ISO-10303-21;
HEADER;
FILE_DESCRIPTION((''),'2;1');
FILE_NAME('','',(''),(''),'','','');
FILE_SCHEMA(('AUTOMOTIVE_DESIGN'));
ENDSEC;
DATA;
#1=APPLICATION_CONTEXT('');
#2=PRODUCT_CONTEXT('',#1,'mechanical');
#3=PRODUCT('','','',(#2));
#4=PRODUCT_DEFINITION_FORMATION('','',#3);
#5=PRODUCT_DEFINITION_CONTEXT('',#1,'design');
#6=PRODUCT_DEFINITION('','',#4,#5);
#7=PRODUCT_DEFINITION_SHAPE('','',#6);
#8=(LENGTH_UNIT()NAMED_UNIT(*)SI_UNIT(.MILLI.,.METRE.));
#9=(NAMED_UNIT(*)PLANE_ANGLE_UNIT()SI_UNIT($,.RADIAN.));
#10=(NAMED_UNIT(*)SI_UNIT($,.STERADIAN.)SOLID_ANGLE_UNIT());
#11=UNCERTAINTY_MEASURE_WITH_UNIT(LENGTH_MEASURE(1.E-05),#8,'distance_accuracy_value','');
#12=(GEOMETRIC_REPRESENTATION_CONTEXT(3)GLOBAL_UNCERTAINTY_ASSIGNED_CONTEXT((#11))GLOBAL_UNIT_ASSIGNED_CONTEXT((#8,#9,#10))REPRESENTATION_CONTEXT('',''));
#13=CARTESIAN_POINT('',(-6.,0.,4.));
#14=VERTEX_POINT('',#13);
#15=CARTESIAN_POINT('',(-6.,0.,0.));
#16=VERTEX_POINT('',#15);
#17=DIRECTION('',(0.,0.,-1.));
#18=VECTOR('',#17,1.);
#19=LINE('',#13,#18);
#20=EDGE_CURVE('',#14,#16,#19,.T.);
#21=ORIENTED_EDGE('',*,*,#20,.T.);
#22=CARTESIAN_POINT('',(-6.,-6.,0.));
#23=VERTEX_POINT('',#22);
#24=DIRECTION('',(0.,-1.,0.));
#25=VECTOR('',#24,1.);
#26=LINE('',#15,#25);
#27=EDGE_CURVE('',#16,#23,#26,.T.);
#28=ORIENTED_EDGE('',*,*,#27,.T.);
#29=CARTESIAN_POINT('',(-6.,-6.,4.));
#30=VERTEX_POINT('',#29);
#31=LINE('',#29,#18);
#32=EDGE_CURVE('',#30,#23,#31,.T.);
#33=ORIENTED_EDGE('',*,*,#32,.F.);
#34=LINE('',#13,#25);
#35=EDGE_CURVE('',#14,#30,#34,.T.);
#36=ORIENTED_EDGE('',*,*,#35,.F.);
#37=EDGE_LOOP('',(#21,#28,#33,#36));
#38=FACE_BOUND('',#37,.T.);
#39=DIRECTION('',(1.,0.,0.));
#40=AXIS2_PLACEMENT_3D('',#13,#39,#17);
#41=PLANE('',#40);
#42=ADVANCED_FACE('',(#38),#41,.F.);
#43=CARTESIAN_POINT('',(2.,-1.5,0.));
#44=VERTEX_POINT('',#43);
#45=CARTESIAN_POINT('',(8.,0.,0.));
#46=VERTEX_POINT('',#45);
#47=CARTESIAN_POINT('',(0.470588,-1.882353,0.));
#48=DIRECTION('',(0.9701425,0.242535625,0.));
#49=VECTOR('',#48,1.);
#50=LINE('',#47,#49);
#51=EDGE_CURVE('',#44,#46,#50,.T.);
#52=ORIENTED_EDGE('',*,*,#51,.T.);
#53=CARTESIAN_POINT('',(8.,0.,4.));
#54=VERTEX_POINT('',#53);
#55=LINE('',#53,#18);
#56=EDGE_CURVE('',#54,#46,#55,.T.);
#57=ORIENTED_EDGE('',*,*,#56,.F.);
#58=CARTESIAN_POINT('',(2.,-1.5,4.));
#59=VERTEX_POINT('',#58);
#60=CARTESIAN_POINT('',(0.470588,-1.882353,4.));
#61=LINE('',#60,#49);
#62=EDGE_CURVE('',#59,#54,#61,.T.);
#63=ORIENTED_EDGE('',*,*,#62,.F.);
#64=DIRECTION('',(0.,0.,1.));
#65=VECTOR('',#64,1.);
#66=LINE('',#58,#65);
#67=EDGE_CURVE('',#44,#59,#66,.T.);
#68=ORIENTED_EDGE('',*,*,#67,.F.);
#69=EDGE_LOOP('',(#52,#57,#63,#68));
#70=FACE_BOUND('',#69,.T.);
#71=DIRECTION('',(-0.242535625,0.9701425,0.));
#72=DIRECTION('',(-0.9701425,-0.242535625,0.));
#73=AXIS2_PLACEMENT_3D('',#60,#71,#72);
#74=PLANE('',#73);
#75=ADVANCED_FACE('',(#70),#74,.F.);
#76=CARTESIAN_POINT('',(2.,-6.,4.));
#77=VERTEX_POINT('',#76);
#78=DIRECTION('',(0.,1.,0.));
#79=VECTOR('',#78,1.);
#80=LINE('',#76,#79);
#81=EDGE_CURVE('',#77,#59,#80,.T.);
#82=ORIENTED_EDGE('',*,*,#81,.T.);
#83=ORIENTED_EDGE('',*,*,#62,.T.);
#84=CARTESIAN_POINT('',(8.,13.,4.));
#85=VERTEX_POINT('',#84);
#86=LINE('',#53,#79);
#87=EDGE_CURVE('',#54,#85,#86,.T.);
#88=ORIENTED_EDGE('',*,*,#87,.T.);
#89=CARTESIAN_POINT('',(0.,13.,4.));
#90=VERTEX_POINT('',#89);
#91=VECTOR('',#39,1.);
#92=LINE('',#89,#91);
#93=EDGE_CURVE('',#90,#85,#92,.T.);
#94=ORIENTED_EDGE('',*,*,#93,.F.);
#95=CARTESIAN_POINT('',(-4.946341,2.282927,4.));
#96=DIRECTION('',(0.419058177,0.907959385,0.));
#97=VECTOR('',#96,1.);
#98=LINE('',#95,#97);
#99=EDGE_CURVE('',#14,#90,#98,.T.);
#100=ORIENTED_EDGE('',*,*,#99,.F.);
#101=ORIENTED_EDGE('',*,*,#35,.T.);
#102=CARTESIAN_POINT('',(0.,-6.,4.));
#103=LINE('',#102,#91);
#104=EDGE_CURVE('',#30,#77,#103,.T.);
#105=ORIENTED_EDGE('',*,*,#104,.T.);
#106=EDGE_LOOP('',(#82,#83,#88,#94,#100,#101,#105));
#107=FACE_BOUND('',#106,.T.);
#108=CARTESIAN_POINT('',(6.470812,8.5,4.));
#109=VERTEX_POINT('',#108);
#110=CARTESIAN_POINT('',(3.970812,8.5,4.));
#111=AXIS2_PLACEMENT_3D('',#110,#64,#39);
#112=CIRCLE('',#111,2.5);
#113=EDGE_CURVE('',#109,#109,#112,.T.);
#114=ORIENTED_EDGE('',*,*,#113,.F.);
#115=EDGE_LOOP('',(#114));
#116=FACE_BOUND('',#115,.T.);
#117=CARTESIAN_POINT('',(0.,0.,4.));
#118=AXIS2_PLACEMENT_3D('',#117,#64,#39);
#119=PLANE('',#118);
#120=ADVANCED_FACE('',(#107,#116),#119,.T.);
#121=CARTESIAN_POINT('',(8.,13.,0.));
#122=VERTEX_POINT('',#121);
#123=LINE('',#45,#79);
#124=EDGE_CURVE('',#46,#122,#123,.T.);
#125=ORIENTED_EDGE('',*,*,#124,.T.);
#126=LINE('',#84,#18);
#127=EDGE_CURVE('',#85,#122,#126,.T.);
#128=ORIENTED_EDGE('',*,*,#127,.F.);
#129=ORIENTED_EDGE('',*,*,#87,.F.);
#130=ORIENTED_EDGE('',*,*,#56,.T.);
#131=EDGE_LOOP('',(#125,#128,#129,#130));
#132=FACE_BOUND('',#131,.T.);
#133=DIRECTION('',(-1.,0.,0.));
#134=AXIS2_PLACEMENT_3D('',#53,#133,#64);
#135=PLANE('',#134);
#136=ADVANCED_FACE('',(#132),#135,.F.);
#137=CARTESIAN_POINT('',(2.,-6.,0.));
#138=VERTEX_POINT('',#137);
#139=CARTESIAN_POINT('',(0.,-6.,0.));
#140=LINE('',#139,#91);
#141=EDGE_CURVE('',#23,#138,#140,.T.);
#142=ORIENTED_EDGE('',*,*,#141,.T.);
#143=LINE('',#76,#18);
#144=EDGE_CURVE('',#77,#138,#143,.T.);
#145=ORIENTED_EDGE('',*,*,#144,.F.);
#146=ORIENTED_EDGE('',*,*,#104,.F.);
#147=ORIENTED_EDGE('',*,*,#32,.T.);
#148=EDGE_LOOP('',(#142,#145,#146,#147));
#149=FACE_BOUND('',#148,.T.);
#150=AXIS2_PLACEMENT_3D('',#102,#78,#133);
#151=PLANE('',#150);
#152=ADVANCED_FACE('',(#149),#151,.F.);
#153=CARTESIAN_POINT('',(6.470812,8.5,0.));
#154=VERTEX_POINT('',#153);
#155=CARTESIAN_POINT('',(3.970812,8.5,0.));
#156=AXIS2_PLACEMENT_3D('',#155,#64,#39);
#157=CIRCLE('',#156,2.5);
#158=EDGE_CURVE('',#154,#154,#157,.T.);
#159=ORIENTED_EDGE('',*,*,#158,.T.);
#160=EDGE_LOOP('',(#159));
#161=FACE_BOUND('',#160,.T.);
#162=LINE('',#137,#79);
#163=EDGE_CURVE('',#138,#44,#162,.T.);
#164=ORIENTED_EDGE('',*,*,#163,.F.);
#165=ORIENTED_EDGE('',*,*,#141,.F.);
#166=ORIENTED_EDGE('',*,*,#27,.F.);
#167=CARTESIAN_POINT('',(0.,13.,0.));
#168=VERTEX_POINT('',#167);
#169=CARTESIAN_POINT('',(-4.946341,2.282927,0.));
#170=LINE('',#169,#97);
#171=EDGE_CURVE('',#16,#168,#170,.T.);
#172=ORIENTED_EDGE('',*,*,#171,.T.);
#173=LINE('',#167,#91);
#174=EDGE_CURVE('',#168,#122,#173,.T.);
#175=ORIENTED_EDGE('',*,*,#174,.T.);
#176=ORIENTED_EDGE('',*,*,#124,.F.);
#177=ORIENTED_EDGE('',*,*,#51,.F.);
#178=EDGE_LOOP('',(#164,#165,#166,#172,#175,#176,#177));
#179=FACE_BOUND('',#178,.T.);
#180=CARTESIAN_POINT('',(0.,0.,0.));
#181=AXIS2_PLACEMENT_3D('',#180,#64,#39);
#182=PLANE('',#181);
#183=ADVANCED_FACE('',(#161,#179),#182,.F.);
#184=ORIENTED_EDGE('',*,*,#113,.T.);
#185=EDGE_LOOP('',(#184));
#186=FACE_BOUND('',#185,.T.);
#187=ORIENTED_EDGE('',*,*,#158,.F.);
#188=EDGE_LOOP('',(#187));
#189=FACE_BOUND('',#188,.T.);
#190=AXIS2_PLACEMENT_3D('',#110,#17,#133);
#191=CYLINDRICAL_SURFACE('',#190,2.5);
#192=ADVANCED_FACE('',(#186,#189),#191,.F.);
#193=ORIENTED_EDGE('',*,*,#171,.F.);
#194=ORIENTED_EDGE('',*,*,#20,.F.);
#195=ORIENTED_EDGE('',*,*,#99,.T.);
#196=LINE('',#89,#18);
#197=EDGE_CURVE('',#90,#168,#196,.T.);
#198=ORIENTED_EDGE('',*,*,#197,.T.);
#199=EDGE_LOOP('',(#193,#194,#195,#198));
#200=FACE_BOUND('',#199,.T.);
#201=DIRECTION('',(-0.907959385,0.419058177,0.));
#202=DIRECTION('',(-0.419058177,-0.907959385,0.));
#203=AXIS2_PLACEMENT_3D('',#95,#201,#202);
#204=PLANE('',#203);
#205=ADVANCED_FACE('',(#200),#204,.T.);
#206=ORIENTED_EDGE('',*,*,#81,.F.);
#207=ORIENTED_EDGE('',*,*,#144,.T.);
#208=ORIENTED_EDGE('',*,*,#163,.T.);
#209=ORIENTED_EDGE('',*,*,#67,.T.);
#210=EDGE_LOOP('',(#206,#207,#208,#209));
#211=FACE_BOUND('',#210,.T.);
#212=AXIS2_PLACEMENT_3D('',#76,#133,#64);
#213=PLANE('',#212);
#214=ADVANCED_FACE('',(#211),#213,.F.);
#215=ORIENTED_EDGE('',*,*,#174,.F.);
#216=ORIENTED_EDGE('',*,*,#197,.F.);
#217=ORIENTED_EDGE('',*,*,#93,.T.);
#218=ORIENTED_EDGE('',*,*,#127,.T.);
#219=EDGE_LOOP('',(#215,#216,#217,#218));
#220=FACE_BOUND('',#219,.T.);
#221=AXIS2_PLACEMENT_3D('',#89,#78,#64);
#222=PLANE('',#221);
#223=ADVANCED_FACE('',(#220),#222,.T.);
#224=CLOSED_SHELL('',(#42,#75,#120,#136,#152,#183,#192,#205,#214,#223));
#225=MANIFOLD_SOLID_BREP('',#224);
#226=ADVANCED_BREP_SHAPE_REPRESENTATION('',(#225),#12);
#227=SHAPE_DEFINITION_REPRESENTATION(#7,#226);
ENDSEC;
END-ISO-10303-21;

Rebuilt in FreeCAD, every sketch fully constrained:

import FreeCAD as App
import Part
import Sketcher

V = App.Vector
Q = App.Units.Quantity


def add_polygon(sketch, points):
    """Adds a closed chain of lines whose ends are joined by coincident constraints."""
    first, n = sketch.GeometryCount, len(points)
    for a, b in zip(points, points[1:] + points[:1]):
        sketch.addGeometry(Part.LineSegment(App.Vector(*a, 0), App.Vector(*b, 0)), False)
    for i in range(n):
        sketch.addConstraint(Sketcher.Constraint("Coincident", first + i, 2, first + (i + 1) % n, 1))

doc = App.newDocument("Part")
body = doc.addObject("PartDesign::Body", "Body")

# Sketch on XY plane
sketch1 = body.newObject("Sketcher::SketchObject", "Sketch")
sketch1.AttachmentSupport = (doc.getObject("XY_Plane"), [""])
sketch1.MapMode = "FlatFace"
add_polygon(sketch1, [(-6, 0), (-6, -6), (2, -6), (2, -1.5), (8, 0), (8, 13), (0, 13)])  # lines 0-6
sketch1.addGeometry(Part.Circle(V(4, 8.5, 0), V(0, 0, 1), 2.5), False)  # 7
sketch1.addConstraint(Sketcher.Constraint("Vertical", 0))
sketch1.addConstraint(Sketcher.Constraint("Horizontal", 1))
sketch1.addConstraint(Sketcher.Constraint("Vertical", 2))
sketch1.addConstraint(Sketcher.Constraint("Vertical", 4))
sketch1.addConstraint(Sketcher.Constraint("Horizontal", 5))
sketch1.addConstraint(Sketcher.Constraint("PointOnObject", 3, 2, -1))
sketch1.addConstraint(Sketcher.Constraint("PointOnObject", 5, 2, -2))
sketch1.addConstraint(Sketcher.Constraint("PointOnObject", 6, 2, -1))
sketch1.addConstraint(Sketcher.Constraint("Equal", 1, 5))
sketch1.addConstraint(Sketcher.Constraint("Diameter", 7, Q("5 mm")))
sketch1.addConstraint(Sketcher.Constraint("DistanceX", 1, 1, 1, 2, Q("8 mm")))
sketch1.addConstraint(Sketcher.Constraint("DistanceY", 0, 2, 0, 1, Q("6 mm")))
sketch1.addConstraint(Sketcher.Constraint("DistanceY", 4, 1, 4, 2, Q("13 mm")))
sketch1.addConstraint(Sketcher.Constraint("DistanceY", 2, 1, 2, 2, Q("4.5 mm")))
sketch1.addConstraint(Sketcher.Constraint("DistanceX", 0, 2, -1, 1, Q("6 mm")))
sketch1.addConstraint(Sketcher.Constraint("DistanceY", 2, 2, 7, 3, Q("10 mm")))
sketch1.addConstraint(Sketcher.Constraint("DistanceX", -1, 1, 7, 3, Q("3.970812 mm")))
pad1 = body.newObject("PartDesign::Pad", "Pad")
pad1.Profile = sketch1
pad1.Length = 4

doc.recompute()
